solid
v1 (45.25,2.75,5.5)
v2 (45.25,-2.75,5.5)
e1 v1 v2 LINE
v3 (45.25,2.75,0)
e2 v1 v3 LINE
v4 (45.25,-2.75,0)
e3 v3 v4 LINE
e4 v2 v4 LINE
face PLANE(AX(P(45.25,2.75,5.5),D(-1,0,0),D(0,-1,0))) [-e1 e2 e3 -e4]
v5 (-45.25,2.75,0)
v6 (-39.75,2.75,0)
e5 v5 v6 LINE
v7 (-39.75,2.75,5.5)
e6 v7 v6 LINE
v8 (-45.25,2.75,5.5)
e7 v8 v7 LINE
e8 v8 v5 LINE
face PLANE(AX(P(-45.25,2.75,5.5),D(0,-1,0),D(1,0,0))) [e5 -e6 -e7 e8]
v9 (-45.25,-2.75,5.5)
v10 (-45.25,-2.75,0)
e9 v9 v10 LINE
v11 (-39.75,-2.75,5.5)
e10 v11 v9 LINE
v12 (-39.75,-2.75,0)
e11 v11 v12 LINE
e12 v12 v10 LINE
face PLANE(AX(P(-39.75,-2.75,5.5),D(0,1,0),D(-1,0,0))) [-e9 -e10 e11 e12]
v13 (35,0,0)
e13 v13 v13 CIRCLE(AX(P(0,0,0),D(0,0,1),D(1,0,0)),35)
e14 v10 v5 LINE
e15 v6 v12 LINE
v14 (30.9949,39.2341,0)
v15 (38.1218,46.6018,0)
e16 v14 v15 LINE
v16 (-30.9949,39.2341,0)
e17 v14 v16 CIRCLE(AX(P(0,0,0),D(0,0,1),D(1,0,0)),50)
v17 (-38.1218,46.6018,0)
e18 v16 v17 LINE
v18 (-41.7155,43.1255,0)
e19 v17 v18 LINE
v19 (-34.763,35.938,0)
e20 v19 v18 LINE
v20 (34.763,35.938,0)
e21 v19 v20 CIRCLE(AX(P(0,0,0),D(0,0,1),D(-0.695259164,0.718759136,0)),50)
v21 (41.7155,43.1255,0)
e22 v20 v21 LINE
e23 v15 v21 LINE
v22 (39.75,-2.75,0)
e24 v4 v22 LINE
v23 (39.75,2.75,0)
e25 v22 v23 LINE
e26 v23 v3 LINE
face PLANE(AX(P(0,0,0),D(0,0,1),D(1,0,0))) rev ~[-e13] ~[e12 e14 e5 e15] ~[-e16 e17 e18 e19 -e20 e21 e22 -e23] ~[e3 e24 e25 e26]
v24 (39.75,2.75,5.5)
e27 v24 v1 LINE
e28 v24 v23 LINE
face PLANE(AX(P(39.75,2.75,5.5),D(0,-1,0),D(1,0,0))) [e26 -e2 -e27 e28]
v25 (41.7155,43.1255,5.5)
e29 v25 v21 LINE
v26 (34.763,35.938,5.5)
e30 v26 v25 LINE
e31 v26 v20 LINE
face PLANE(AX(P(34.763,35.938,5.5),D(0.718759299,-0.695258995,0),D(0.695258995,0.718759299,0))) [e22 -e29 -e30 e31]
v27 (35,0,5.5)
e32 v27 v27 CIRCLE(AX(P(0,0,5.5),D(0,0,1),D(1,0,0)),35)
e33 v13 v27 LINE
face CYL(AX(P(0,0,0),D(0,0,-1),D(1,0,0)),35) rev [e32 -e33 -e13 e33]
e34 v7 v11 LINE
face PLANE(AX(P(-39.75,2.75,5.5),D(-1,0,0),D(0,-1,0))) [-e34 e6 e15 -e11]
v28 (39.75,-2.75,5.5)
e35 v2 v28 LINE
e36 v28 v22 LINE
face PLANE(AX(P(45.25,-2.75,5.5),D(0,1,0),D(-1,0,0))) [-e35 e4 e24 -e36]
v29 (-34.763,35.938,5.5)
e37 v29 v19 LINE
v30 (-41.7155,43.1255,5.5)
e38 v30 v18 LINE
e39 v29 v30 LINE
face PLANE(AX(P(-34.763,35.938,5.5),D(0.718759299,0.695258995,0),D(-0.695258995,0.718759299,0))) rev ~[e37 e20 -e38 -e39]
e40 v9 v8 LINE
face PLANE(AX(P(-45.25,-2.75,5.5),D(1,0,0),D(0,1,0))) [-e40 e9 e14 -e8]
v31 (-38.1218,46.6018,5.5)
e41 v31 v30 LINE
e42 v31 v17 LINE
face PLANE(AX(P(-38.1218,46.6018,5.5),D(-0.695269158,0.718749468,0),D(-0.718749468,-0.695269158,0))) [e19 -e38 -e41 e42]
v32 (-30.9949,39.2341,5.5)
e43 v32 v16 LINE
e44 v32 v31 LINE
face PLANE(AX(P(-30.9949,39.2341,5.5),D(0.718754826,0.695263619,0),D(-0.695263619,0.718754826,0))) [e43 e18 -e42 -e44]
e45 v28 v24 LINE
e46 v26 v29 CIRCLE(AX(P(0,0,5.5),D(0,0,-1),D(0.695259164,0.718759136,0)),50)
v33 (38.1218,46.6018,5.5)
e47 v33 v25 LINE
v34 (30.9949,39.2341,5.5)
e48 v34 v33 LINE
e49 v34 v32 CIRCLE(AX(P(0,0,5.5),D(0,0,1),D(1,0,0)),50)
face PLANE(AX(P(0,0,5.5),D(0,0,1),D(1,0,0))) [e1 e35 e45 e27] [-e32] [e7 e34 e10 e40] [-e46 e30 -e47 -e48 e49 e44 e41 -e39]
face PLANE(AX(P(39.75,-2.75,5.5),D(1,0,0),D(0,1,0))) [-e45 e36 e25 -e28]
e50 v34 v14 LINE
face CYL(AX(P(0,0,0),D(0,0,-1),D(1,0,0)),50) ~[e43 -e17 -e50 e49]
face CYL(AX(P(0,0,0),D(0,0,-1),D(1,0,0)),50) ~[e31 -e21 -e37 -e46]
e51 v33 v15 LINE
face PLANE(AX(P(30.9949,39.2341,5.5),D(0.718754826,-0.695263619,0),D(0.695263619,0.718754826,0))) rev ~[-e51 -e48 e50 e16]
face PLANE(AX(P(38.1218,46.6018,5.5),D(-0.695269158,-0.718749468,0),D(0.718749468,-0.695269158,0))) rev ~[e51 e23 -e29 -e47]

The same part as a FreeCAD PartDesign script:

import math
import FreeCAD as App
import Part
import Sketcher
from FreeCAD import Vector
Q = App.Units.Quantity

doc = App.newDocument("Part")
body = doc.addObject("PartDesign::Body", "Body")

# Sketch on XY plane
sketch1 = body.newObject("Sketcher::SketchObject", "Sketch")
sketch1.AttachmentSupport = (doc.getObject("XY_Plane"), [""])
sketch1.MapMode = "FlatFace"
sketch1.addGeometry([
    Part.Circle(Vector(0, 0, 0), Vector(0, 0, 1), 50),
    Part.Circle(Vector(0, 0, 0), Vector(0, 0, 1), 35),
], False)
sketch1.addConstraint([
    Sketcher.Constraint("Coincident", 0, 3, -1, 1),
    Sketcher.Constraint("Coincident", 1, 3, -1, 1),
    Sketcher.Constraint("Diameter", 0, Q("100 mm")),
    Sketcher.Constraint("Diameter", 1, Q("70 mm")),
])
pad1 = body.newObject("PartDesign::Pad", "Pad")
pad1.Profile = sketch1
pad1.Length = 5.5

# Sketch on XY plane
sketch2 = body.newObject("Sketcher::SketchObject", "Sketch001")
sketch2.AttachmentSupport = (doc.getObject("XY_Plane"), [""])
sketch2.MapMode = "FlatFace"
sketch2.AttachmentOffset = App.Placement(Vector(0, 0, 5.5), App.Rotation())
sketch2.addGeometry([
    Part.LineSegment(Vector(45, 3, 0), Vector(40, 3, 0)),  # 0
    Part.LineSegment(Vector(40, 3, 0), Vector(40, -3, 0)),  # 1
    Part.LineSegment(Vector(40, -3, 0), Vector(45, -3, 0)),  # 2
    Part.LineSegment(Vector(45, -3, 0), Vector(45, 3, 0)),  # 3
    Part.LineSegment(Vector(-45, -3, 0), Vector(-40, -3, 0)),  # 4
    Part.LineSegment(Vector(-40, -3, 0), Vector(-40, 3, 0)),  # 5
    Part.LineSegment(Vector(-40, 3, 0), Vector(-45, 3, 0)),  # 6
    Part.LineSegment(Vector(-45, 3, 0), Vector(-45, -3, 0)),  # 7
], False)
sketch2.addConstraint([
    Sketcher.Constraint("Coincident", 0, 2, 1, 1),
    Sketcher.Constraint("Coincident", 1, 2, 2, 1),
    Sketcher.Constraint("Coincident", 2, 2, 3, 1),
    Sketcher.Constraint("Coincident", 3, 2, 0, 1),
    Sketcher.Constraint("Coincident", 4, 2, 5, 1),
    Sketcher.Constraint("Coincident", 5, 2, 6, 1),
    Sketcher.Constraint("Coincident", 6, 2, 7, 1),
    Sketcher.Constraint("Coincident", 7, 2, 4, 1),
    Sketcher.Constraint("Horizontal", 0),
    Sketcher.Constraint("Vertical", 1),
    Sketcher.Constraint("Horizontal", 2),
    Sketcher.Constraint("Vertical", 3),
    Sketcher.Constraint("Horizontal", 4),
    Sketcher.Constraint("Vertical", 5),
    Sketcher.Constraint("Horizontal", 6),
    Sketcher.Constraint("Vertical", 7),
    Sketcher.Constraint("Symmetric", 0, 2, 4, 2, -1, 1),
    Sketcher.Constraint("Symmetric", 2, 2, 6, 2, -1, 1),
    Sketcher.Constraint("Horizontal", 2, 2, 4, 2),
    Sketcher.Constraint("Equal", 6, 1),
    Sketcher.Constraint("DistanceX", 0, 2, 0, 1, Q("5.5 mm")),
    Sketcher.Constraint("DistanceX", 4, 2, 2, 2, Q("85 mm")),
])
pocket1 = body.newObject("PartDesign::Pocket", "Pocket")
pocket1.Profile = sketch2
pocket1.Length = 10

# Sketch on XY plane
sketch3 = body.newObject("Sketcher::SketchObject", "Sketch002")
sketch3.AttachmentSupport = (doc.getObject("XY_Plane"), [""])
sketch3.MapMode = "FlatFace"
sketch3.AttachmentOffset = App.Placement(Vector(0, 0, 5.5), App.Rotation())
sketch3.addGeometry([
    Part.ArcOfCircle(Part.Circle(Vector(0, 0, 0), Vector(0, 0, 1), 50), math.radians(45.95), math.radians(51.69)),  # 0
    Part.LineSegment(Vector(34.8, 35.9, 0), Vector(41.7, 43.1, 0)),  # 1
    Part.LineSegment(Vector(41.7, 43.1, 0), Vector(38.1, 46.6, 0)),  # 2
    Part.LineSegment(Vector(38.1, 46.6, 0), Vector(31, 39.2, 0)),  # 3
    Part.LineSegment(Vector(-41.7, 43.1, 0), Vector(-34.8, 35.9, 0)),  # 4
    Part.ArcOfCircle(Part.Circle(Vector(-33.6, 38.4, 0), Vector(0, 0, 1), 2.7), math.radians(-116), math.radians(19)),  # 5
    Part.LineSegment(Vector(-31, 39.2, 0), Vector(-38.1, 46.6, 0)),  # 6
    Part.LineSegment(Vector(-38.1, 46.6, 0), Vector(-41.7, 43.1, 0)),  # 7
], False)
sketch3.addConstraint([
    Sketcher.Constraint("Coincident", 0, 1, 1, 1),
    Sketcher.Constraint("Coincident", 1, 2, 2, 1),
    Sketcher.Constraint("Coincident", 2, 2, 3, 1),
    Sketcher.Constraint("Coincident", 3, 2, 0, 2),
    Sketcher.Constraint("Coincident", 4, 2, 5, 1),
    Sketcher.Constraint("Coincident", 5, 2, 6, 1),
    Sketcher.Constraint("Coincident", 6, 2, 7, 1),
    Sketcher.Constraint("Coincident", 7, 2, 4, 1),
    Sketcher.Constraint("Coincident", 0, 3, -1, 1),
    Sketcher.Constraint("Symmetric", 0, 1, 4, 2, -2),
    Sketcher.Constraint("Symmetric", 3, 2, 5, 2, -2),
    Sketcher.Constraint("Symmetric", 2, 2, 6, 2, -2),
    Sketcher.Constraint("Symmetric", 1, 2, 7, 2, -2),
    Sketcher.Constraint("Perpendicular", 1, 2),
    Sketcher.Constraint("Perpendicular", 2, 3),
    Sketcher.Constraint("Distance", 2, Q("5 mm")),
    Sketcher.Constraint("Radius", 0, Q("50 mm")),
    Sketcher.Constraint("Distance", 1, Q("9.9999 mm")),
    Sketcher.Constraint("Radius", 5, Q("2.7088 mm")),
    Sketcher.Constraint("DistanceY", 5, 3, 1, 2, Q("4.76 mm")),
    Sketcher.Constraint("DistanceX", -1, 1, 0, 1, Q("34.763 mm")),
])
pad2 = body.newObject("PartDesign::Pad", "Pad001")
pad2.Profile = sketch3
pad2.Length = 5.5
pad2.Reversed = True

doc.recompute()
